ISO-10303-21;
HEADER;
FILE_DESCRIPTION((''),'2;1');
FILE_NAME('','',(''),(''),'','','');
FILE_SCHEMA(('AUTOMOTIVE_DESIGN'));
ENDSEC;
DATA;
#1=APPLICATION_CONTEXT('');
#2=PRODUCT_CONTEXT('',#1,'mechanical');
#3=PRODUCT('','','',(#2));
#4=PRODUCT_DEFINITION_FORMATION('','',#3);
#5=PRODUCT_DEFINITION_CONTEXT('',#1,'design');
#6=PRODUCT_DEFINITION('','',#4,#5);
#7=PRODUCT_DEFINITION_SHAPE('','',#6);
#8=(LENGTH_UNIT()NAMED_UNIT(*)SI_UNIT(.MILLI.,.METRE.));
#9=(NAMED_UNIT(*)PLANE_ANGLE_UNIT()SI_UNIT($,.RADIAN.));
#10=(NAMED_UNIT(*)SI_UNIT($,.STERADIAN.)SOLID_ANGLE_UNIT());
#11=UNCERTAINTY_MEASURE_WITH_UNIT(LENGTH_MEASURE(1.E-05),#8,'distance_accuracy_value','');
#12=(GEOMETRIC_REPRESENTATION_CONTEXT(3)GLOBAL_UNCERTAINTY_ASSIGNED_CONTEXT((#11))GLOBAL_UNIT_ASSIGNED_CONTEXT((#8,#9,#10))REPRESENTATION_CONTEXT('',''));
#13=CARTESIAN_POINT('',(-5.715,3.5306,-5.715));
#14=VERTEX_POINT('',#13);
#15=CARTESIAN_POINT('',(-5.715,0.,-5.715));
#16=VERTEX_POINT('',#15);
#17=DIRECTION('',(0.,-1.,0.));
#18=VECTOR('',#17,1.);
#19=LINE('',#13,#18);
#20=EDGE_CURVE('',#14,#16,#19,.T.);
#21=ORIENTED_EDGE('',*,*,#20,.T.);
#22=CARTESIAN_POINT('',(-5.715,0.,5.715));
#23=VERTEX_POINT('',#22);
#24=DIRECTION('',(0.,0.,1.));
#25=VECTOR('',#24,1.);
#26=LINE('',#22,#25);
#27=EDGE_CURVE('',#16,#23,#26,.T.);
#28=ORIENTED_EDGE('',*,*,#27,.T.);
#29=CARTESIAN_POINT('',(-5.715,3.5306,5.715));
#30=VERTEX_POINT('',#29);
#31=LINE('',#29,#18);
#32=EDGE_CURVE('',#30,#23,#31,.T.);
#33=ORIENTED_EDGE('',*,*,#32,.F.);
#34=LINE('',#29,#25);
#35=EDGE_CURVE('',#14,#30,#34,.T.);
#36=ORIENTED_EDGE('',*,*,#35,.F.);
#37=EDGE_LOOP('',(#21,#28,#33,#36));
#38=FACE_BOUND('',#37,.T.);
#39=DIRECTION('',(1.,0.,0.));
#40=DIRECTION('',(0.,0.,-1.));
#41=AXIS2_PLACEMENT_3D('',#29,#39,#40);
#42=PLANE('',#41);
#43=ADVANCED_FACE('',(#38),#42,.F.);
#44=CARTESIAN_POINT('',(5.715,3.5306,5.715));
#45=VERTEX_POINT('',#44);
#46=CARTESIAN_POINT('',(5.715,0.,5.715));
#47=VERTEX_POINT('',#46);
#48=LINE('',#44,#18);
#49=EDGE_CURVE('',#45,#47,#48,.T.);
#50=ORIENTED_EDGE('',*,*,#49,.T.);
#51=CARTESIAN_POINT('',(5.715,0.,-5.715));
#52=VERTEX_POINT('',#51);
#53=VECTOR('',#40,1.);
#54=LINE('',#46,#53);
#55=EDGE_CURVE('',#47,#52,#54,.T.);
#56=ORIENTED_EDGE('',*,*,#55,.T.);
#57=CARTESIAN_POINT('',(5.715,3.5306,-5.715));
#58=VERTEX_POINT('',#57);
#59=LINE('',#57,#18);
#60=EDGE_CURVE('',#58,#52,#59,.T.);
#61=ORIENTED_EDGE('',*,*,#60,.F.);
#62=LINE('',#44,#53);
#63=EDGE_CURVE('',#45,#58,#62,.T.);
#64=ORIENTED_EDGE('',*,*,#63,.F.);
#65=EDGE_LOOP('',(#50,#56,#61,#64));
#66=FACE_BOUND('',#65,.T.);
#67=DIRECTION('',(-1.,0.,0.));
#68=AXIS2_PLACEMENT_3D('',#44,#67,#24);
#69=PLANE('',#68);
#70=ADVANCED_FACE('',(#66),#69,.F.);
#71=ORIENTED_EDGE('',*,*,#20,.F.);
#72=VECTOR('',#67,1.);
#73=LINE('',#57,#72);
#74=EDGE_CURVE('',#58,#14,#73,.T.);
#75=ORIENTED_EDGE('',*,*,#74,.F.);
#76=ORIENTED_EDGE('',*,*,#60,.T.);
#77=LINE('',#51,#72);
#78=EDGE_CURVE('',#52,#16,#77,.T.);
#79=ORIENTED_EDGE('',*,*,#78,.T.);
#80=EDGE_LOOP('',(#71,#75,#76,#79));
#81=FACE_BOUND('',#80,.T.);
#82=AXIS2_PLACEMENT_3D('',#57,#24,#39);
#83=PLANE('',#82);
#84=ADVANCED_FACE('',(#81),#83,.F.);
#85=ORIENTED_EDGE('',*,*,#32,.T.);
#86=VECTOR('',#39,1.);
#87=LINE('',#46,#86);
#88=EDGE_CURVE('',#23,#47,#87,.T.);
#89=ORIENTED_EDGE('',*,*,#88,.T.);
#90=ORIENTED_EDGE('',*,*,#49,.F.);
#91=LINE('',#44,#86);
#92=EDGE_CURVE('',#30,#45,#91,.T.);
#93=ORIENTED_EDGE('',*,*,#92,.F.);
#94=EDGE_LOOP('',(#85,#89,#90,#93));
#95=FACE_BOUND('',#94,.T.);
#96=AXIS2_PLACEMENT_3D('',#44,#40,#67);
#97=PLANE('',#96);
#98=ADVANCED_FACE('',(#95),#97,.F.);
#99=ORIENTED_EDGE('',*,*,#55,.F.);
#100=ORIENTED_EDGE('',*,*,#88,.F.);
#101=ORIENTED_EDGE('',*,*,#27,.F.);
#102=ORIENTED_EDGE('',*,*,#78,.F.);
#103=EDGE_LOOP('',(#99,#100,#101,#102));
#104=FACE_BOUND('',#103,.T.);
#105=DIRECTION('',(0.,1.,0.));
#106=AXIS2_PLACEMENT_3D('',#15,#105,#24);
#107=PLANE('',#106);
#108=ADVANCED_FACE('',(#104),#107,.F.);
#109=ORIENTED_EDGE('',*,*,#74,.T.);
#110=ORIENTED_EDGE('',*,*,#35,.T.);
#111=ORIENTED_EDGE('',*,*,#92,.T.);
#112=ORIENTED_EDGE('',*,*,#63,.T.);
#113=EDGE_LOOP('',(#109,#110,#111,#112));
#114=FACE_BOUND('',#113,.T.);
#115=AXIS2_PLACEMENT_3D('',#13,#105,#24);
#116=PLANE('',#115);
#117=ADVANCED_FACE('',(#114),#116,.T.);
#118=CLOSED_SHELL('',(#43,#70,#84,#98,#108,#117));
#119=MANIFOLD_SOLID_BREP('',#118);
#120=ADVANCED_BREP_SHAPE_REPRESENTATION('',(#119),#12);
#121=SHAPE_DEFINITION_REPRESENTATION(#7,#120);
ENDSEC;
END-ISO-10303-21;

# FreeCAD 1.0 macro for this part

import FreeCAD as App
import Part
import Sketcher
Q = App.Units.Quantity

doc = App.newDocument("Part")
params = doc.addObject("Spreadsheet::Sheet", "Params")
for row, (alias, value) in enumerate([
    ("sketch1_width", "0.45 in"),
    ("pad1_length", "0.139 in"),
], start=1):
    params.set(f"A{row}", alias)
    params.set(f"B{row}", "=" + value)
    params.setAlias(f"B{row}", alias)

body = doc.addObject("PartDesign::Body", "Body")

sketch1 = doc.addObject("Sketcher::SketchObject", "Sketch")
body.addObject(sketch1)
sketch1.AttachmentSupport = (doc.XZ_Plane, [""])
sketch1.MapMode = "FlatFace"
sketch1.addGeometry([
    Part.LineSegment(App.Vector(-6, -6, 0), App.Vector(-6, 6, 0)),
    Part.LineSegment(App.Vector(-6, 6, 0), App.Vector(6, 6, 0)),
    Part.LineSegment(App.Vector(6, 6, 0), App.Vector(6, -6, 0)),
    Part.LineSegment(App.Vector(6, -6, 0), App.Vector(-6, -6, 0)),
], False)
sketch1.addConstraint([
    Sketcher.Constraint("Coincident", 0, 2, 1, 1),
    Sketcher.Constraint("Coincident", 1, 2, 2, 1),
    Sketcher.Constraint("Coincident", 2, 2, 3, 1),
    Sketcher.Constraint("Coincident", 3, 2, 0, 1),
    Sketcher.Constraint("Vertical", 0),
    Sketcher.Constraint("Horizontal", 1),
    Sketcher.Constraint("Vertical", 2),
    Sketcher.Constraint("Horizontal", 3),
    Sketcher.Constraint("Symmetric", 0, 2, 2, 2, -1, 1),
    Sketcher.Constraint("Equal", 3, 0),
    Sketcher.Constraint("DistanceX", 1, 1, 1, 2, Q("0.45 in")),
])
sketch1.setExpression("Constraints[10]", "Params.sketch1_width")
pad1 = doc.addObject("PartDesign::Pad", "Pad")
body.addObject(pad1)
pad1.Profile = sketch1
pad1.setExpression("Length", "Params.pad1_length")
pad1.Reversed = True

doc.recompute()
